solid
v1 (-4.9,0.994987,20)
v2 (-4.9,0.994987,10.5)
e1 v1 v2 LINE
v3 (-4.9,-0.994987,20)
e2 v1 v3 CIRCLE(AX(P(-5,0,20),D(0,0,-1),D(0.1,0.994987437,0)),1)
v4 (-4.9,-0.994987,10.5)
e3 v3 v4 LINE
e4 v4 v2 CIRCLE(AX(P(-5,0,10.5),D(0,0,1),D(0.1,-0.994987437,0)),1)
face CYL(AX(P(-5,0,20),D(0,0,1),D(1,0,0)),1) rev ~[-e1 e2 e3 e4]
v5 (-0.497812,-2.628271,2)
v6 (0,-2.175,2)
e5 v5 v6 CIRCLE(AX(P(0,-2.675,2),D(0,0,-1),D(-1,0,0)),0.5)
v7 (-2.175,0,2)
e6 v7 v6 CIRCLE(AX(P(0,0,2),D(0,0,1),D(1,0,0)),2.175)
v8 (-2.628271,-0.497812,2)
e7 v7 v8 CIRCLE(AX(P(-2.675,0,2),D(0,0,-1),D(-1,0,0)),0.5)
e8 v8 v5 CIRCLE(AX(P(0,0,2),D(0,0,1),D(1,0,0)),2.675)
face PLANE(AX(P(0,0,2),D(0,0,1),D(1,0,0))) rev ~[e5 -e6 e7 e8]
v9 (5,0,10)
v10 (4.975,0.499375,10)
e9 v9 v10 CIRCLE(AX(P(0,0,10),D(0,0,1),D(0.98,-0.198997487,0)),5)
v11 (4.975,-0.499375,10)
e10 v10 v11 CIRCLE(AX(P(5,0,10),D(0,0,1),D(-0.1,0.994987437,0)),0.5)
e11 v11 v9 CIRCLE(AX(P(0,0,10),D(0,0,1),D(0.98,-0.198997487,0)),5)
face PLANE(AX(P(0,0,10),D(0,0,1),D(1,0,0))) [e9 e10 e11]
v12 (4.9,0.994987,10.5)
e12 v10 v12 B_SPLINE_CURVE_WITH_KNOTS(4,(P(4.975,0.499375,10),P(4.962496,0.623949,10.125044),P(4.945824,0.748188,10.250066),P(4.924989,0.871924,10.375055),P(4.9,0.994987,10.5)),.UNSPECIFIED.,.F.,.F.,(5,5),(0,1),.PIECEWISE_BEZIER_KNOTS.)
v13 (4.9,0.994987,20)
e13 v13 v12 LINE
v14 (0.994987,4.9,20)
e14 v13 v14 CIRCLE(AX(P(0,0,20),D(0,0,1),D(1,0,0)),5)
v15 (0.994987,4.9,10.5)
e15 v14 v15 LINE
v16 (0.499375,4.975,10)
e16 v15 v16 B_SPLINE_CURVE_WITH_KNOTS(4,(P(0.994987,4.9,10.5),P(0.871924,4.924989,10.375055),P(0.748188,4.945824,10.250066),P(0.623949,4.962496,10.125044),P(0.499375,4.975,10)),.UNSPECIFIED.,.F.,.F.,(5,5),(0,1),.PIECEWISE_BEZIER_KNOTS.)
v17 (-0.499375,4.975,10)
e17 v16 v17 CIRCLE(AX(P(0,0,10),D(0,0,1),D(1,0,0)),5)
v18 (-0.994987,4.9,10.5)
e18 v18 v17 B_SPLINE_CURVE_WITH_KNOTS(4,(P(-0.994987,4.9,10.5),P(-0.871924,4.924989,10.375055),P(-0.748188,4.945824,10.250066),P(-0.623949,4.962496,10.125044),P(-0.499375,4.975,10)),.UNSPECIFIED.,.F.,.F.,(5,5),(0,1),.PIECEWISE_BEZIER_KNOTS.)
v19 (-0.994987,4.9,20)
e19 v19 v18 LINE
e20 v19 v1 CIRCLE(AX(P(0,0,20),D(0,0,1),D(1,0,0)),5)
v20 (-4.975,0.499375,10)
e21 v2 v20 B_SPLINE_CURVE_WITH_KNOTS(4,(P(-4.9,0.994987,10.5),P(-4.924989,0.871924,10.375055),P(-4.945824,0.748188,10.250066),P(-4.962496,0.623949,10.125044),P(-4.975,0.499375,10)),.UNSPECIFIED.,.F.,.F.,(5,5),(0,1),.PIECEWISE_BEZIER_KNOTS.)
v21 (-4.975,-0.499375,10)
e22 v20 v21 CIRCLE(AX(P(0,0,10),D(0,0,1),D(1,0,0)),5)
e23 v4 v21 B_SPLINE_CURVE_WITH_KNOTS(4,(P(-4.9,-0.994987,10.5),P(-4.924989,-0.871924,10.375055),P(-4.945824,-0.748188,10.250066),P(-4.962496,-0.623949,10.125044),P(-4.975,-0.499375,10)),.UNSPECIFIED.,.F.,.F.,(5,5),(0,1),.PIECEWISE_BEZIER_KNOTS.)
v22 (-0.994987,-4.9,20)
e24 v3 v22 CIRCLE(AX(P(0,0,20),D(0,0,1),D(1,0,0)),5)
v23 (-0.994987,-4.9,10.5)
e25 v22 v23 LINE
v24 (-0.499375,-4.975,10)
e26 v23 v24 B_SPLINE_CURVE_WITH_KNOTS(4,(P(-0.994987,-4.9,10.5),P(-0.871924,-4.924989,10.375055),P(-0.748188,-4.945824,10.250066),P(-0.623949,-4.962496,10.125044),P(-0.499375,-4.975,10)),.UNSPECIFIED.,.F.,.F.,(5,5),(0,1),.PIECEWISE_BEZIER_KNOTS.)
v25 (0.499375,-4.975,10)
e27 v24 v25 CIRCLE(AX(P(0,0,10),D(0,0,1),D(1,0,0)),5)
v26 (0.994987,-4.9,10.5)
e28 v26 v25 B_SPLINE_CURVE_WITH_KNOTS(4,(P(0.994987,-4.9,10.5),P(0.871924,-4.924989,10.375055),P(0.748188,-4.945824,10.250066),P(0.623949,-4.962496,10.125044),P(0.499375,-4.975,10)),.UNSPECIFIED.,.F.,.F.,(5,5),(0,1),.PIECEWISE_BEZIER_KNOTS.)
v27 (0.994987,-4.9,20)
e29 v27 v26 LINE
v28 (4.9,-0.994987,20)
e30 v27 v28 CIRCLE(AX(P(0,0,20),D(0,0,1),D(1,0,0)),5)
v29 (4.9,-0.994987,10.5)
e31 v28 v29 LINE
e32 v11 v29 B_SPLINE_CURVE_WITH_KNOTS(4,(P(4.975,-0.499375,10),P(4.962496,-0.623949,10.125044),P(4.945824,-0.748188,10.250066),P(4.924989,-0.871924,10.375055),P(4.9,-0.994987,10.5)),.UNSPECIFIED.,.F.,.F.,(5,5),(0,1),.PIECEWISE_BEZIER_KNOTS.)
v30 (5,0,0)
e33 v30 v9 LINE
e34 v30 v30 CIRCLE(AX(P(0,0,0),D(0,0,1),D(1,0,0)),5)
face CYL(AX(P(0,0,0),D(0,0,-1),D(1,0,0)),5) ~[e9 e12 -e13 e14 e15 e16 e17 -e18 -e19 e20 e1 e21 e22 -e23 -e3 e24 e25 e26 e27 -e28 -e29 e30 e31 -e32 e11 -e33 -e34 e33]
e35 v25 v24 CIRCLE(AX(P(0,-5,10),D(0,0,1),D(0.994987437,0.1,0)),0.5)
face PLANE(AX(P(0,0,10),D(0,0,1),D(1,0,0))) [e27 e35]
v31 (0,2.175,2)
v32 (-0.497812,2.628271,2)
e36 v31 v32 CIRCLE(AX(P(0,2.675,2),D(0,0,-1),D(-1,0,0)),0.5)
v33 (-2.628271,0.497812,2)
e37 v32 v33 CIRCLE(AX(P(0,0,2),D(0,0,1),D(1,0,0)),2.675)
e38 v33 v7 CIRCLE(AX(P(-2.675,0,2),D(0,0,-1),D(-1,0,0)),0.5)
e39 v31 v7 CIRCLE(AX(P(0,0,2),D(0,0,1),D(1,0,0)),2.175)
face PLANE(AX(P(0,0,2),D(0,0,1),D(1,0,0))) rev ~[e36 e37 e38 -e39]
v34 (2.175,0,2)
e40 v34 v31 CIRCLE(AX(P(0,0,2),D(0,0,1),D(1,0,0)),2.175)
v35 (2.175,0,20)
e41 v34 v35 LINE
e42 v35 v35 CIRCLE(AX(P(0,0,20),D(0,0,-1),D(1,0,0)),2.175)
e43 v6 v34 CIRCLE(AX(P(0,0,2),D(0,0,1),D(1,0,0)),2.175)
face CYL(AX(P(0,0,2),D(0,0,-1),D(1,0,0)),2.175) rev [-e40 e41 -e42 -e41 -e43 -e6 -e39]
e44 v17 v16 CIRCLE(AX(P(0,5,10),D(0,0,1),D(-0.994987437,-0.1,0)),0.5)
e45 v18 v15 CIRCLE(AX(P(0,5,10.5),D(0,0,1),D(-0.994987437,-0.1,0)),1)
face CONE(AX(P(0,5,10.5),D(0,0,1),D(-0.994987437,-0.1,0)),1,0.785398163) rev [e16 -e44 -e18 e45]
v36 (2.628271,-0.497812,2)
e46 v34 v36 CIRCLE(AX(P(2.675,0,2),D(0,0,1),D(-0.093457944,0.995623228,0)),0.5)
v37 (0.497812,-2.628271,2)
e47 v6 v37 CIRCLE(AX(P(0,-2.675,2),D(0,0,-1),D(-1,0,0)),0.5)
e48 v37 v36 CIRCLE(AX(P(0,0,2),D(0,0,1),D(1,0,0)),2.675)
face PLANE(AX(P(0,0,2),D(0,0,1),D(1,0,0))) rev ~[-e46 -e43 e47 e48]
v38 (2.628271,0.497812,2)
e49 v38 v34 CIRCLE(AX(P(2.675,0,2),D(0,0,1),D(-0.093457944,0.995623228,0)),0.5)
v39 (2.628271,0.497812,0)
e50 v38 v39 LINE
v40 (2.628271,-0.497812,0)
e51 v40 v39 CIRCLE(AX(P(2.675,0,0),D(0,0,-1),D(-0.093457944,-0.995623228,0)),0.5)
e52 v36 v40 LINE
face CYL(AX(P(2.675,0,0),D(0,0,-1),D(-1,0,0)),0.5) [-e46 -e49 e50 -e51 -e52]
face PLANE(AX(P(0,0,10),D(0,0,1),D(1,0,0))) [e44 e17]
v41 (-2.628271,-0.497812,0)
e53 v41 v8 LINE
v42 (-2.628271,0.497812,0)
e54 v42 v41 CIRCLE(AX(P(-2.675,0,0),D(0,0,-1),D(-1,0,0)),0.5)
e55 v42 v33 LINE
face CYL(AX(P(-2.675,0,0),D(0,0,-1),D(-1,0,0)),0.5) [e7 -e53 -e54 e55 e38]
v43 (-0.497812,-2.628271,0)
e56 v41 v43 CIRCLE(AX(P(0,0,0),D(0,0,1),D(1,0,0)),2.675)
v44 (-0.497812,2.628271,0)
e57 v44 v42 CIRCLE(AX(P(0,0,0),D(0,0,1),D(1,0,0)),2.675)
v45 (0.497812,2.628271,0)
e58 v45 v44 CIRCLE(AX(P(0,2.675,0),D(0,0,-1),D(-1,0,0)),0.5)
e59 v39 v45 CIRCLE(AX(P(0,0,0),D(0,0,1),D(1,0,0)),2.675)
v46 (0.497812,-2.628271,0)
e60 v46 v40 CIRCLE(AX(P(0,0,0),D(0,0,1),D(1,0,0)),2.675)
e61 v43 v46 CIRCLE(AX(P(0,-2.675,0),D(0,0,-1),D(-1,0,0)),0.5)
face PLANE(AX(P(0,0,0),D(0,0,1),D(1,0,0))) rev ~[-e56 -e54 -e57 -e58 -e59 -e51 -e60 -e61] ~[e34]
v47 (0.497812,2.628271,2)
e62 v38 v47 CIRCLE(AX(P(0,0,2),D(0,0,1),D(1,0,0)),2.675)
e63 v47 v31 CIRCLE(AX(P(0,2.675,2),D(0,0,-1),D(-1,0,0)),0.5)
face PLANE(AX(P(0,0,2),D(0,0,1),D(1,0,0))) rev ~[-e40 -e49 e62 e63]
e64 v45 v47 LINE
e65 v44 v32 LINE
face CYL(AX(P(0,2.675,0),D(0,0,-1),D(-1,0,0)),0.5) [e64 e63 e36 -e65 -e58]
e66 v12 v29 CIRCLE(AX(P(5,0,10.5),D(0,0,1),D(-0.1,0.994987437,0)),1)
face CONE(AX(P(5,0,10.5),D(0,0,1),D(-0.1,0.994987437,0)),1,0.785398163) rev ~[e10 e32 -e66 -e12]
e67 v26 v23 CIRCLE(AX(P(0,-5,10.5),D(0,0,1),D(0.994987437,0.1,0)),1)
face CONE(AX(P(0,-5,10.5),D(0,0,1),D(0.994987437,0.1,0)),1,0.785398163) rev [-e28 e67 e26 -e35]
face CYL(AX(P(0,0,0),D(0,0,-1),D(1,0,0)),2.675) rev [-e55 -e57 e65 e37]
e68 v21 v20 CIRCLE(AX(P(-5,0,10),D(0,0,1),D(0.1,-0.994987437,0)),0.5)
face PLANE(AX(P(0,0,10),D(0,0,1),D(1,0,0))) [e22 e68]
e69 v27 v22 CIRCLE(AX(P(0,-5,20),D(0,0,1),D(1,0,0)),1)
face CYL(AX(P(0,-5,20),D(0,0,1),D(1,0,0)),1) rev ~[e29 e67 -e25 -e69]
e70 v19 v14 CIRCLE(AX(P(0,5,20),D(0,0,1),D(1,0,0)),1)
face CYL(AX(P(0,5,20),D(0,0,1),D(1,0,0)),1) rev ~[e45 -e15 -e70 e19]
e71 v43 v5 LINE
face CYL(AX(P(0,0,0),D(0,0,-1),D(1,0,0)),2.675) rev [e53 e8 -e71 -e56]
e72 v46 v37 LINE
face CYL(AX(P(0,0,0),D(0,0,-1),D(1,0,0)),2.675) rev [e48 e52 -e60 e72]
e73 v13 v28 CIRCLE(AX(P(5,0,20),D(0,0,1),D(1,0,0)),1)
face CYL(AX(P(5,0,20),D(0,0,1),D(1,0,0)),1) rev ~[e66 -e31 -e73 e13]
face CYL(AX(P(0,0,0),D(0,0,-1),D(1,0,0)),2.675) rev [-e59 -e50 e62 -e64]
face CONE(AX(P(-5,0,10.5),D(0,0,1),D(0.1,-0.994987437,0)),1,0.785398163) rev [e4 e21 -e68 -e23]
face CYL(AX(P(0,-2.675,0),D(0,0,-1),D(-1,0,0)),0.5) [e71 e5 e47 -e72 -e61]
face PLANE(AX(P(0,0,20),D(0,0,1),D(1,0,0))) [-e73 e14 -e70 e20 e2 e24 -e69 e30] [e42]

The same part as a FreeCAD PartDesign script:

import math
import FreeCAD as App
import Part
import Sketcher
from FreeCAD import Vector
Q = App.Units.Quantity


def edges_at(feature, points):
    """Names of the edges that pass closest to the given points."""
    edges = feature.Shape.Edges
    near = lambda p: min(range(len(edges)), key=lambda i: edges[i].distToShape(Part.Vertex(*p))[0])
    return sorted({f"Edge{near(p) + 1}" for p in points})

doc = App.newDocument("Part")
params = doc.addObject("Spreadsheet::Sheet", "Params")
for row, (alias, value) in enumerate([
    ("sketch1_diameter", "10 mm"),
    ("sketch1_diameter2", "5.35 mm"),
    ("pad1_length", "20 mm"),
    ("sketch2_diameter", "1 mm"),
    ("pad2_length", "2 mm"),
    ("sketch3_diameter", "5.35 mm"),
    ("sketch3_diameter2", "4.35 mm"),
    ("pad3_length", "18 mm"),
    ("sketch4_radius", "1 mm"),
    ("sketch4_radius2", "5 mm"),
    ("pocket1_length", "10 mm"),
    ("chamfer_size", "0.5 mm"),
], start=1):
    params.set(f"A{row}", alias)
    params.set(f"B{row}", "=" + value)
    params.setAlias(f"B{row}", alias)

body = doc.addObject("PartDesign::Body", "Body")

# Sketch on XY plane
sketch1 = body.newObject("Sketcher::SketchObject", "Sketch")
sketch1.AttachmentSupport = (doc.getObject("XY_Plane"), [""])
sketch1.MapMode = "FlatFace"
sketch1.addGeometry([
    Part.Circle(Vector(0, 0, 0), Vector(0, 0, 1), 5),
    Part.Circle(Vector(0, 0, 0), Vector(0, 0, 1), 2.675),
], False)
sketch1.addConstraint([
    Sketcher.Constraint("Coincident", 0, 3, -1, 1),
    Sketcher.Constraint("Coincident", 1, 3, -1, 1),
    Sketcher.Constraint("Diameter", 0, Q("10 mm")),
    Sketcher.Constraint("Diameter", 1, Q("5.35 mm")),
])
sketch1.setExpression("Constraints[2]", "Params.sketch1_diameter")
sketch1.setExpression("Constraints[3]", "Params.sketch1_diameter2")
pad1 = body.newObject("PartDesign::Pad", "Pad")
pad1.Profile = sketch1
pad1.setExpression("Length", "Params.pad1_length")

# Sketch on XY plane
sketch2 = body.newObject("Sketcher::SketchObject", "Sketch001")
sketch2.AttachmentSupport = (doc.getObject("XY_Plane"), [""])
sketch2.MapMode = "FlatFace"
sketch2.addGeometry([
    Part.ArcOfCircle(Part.Circle(Vector(0, 0, 0), Vector(0, 0, 1), 2.675), math.radians(169.274857), math.radians(190.725143)),  # 0
    Part.ArcOfCircle(Part.Circle(Vector(-2.675, 0, 0), Vector(0, 0, 1), 0.5), math.radians(-84.637428), math.radians(84.637428)),  # 1
    Part.ArcOfCircle(Part.Circle(Vector(0, 2.675, 0), Vector(0, 0, 1), 0.5), math.radians(-174.637428), math.radians(-5.362572)),  # 2
    Part.ArcOfCircle(Part.Circle(Vector(0, 0, 0), Vector(0, 0, 1), 2.675), math.radians(79.274857), math.radians(100.725143)),  # 3
    Part.ArcOfCircle(Part.Circle(Vector(0, 0, 0), Vector(0, 0, 1), 2.675), math.radians(-100.725143), math.radians(-79.274857)),  # 4
    Part.ArcOfCircle(Part.Circle(Vector(0, -2.675, 0), Vector(0, 0, 1), 0.5), math.radians(5.362572), math.radians(174.637428)),  # 5
    Part.Circle(Vector(2.675, 0, 0), Vector(0, 0, 1), 0.5),  # 6
], False)
sketch2.addConstraint([
    Sketcher.Constraint("Coincident", 0, 1, 1, 2),
    Sketcher.Constraint("Coincident", 1, 1, 0, 2),
    Sketcher.Constraint("Coincident", 2, 1, 3, 2),
    Sketcher.Constraint("Coincident", 3, 1, 2, 2),
    Sketcher.Constraint("Coincident", 4, 1, 5, 2),
    Sketcher.Constraint("Coincident", 5, 1, 4, 2),
    Sketcher.Constraint("Coincident", 0, 3, -1, 1),
    Sketcher.Constraint("Coincident", 3, 3, -1, 1),
    Sketcher.Constraint("Coincident", 4, 3, -1, 1),
    Sketcher.Constraint("Equal", 1, 2),
    Sketcher.Constraint("Equal", 0, 3),
    Sketcher.Constraint("Equal", 3, 4),
    Sketcher.Constraint("Equal", 2, 5),
    Sketcher.Constraint("Equal", 5, 6),
    Sketcher.Constraint("Symmetric", 2, 3, 5, 3, -1, 1),
    Sketcher.Constraint("Symmetric", 1, 3, 6, 3, -1, 1),
    Sketcher.Constraint("PointOnObject", 1, 3, -1),
    Sketcher.Constraint("PointOnObject", 2, 3, -2),
    Sketcher.Constraint("Diameter", 6, Q("1 mm")),
    Sketcher.Constraint("Radius", 0, Q("2.675 mm")),
    Sketcher.Constraint("DistanceY", 5, 3, 2, 3, Q("5.35 mm")),
    Sketcher.Constraint("DistanceX", 1, 3, -1, 1, Q("2.675 mm")),
])
sketch2.setExpression("Constraints[18]", "Params.sketch2_diameter")
pad2 = body.newObject("PartDesign::Pad", "Pad001")
pad2.Profile = sketch2
pad2.setExpression("Length", "Params.pad2_length")

# Sketch on XY plane
sketch3 = body.newObject("Sketcher::SketchObject", "Sketch002")
sketch3.AttachmentSupport = (doc.getObject("XY_Plane"), [""])
sketch3.MapMode = "FlatFace"
sketch3.AttachmentOffset = App.Placement(Vector(0, 0, 2), App.Rotation())
sketch3.addGeometry([
    Part.Circle(Vector(0, 0, 0), Vector(0, 0, 1), 2.675),
    Part.Circle(Vector(0, 0, 0), Vector(0, 0, 1), 2.175),
], False)
sketch3.addConstraint([
    Sketcher.Constraint("Coincident", 0, 3, -1, 1),
    Sketcher.Constraint("Coincident", 1, 3, -1, 1),
    Sketcher.Constraint("Diameter", 0, Q("5.35 mm")),
    Sketcher.Constraint("Diameter", 1, Q("4.35 mm")),
])
sketch3.setExpression("Constraints[2]", "Params.sketch3_diameter")
sketch3.setExpression("Constraints[3]", "Params.sketch3_diameter2")
pad3 = body.newObject("PartDesign::Pad", "Pad002")
pad3.Profile = sketch3
pad3.setExpression("Length", "Params.pad3_length")

# Sketch on XY plane
sketch4 = body.newObject("Sketcher::SketchObject", "Sketch003")
sketch4.AttachmentSupport = (doc.getObject("XY_Plane"), [""])
sketch4.MapMode = "FlatFace"
sketch4.AttachmentOffset = App.Placement(Vector(0, 0, 20), App.Rotation())
sketch4.addGeometry([
    Part.ArcOfCircle(Part.Circle(Vector(0, 0, 0), Vector(0, 0, 1), 5), math.radians(-11.478341), math.radians(11.478341)),  # 0
    Part.ArcOfCircle(Part.Circle(Vector(5, 0, 0), Vector(0, 0, 1), 1), math.radians(95.73917), math.radians(264.26083)),  # 1
    Part.ArcOfCircle(Part.Circle(Vector(0, 5, 0), Vector(0, 0, 1), 1), math.radians(-174.26083), math.radians(-5.73917)),  # 2
    Part.ArcOfCircle(Part.Circle(Vector(0, 0, 0), Vector(0, 0, 1), 5), math.radians(78.521659), math.radians(101.478341)),  # 3
    Part.ArcOfCircle(Part.Circle(Vector(0, 0, 0), Vector(0, 0, 1), 5), math.radians(-101.478341), math.radians(-78.521659)),  # 4
    Part.ArcOfCircle(Part.Circle(Vector(0, -5, 0), Vector(0, 0, 1), 1), math.radians(5.73917), math.radians(174.26083)),  # 5
    Part.ArcOfCircle(Part.Circle(Vector(-5, 0, 0), Vector(0, 0, 1), 1), math.radians(-84.26083), math.radians(84.26083)),  # 6
    Part.ArcOfCircle(Part.Circle(Vector(0, 0, 0), Vector(0, 0, 1), 5), math.radians(168.521659), math.radians(191.478341)),  # 7
], False)
sketch4.addConstraint([
    Sketcher.Constraint("Coincident", 0, 1, 1, 2),
    Sketcher.Constraint("Coincident", 1, 1, 0, 2),
    Sketcher.Constraint("Coincident", 2, 1, 3, 2),
    Sketcher.Constraint("Coincident", 3, 1, 2, 2),
    Sketcher.Constraint("Coincident", 4, 1, 5, 2),
    Sketcher.Constraint("Coincident", 5, 1, 4, 2),
    Sketcher.Constraint("Coincident", 6, 1, 7, 2),
    Sketcher.Constraint("Coincident", 7, 1, 6, 2),
    Sketcher.Constraint("Coincident", 0, 3, -1, 1),
    Sketcher.Constraint("Coincident", 3, 3, -1, 1),
    Sketcher.Constraint("Coincident", 4, 3, -1, 1),
    Sketcher.Constraint("Coincident", 7, 3, -1, 1),
    Sketcher.Constraint("Equal", 1, 2),
    Sketcher.Constraint("Equal", 0, 3),
    Sketcher.Constraint("Equal", 3, 4),
    Sketcher.Constraint("Equal", 2, 5),
    Sketcher.Constraint("Equal", 5, 6),
    Sketcher.Constraint("Equal", 4, 7),
    Sketcher.Constraint("Symmetric", 2, 3, 5, 3, -1, 1),
    Sketcher.Constraint("Symmetric", 1, 3, 6, 3, -1, 1),
    Sketcher.Constraint("PointOnObject", 1, 3, -1),
    Sketcher.Constraint("PointOnObject", 2, 3, -2),
    Sketcher.Constraint("Radius", 1, Q("1 mm")),
    Sketcher.Constraint("Radius", 0, Q("5 mm")),
    Sketcher.Constraint("DistanceX", -1, 1, 1, 3, Q("5 mm")),
    Sketcher.Constraint("DistanceY", -1, 1, 2, 3, Q("5 mm")),
])
sketch4.setExpression("Constraints[22]", "Params.sketch4_radius")
sketch4.setExpression("Constraints[23]", "Params.sketch4_radius2")
pocket1 = body.newObject("PartDesign::Pocket", "Pocket")
pocket1.Profile = sketch4
pocket1.setExpression("Length", "Params.pocket1_length")
doc.recompute()

chamfer = body.newObject("PartDesign::Chamfer", "Chamfer")
chamfer.Base = (pocket1, edges_at(pocket1, [
    (0, 4, 10),
    (4, 0, 10),
    (0, -4, 10),
    (-4, 0, 10),
]))
chamfer.setExpression("Size", "Params.chamfer_size")

doc.recompute()
